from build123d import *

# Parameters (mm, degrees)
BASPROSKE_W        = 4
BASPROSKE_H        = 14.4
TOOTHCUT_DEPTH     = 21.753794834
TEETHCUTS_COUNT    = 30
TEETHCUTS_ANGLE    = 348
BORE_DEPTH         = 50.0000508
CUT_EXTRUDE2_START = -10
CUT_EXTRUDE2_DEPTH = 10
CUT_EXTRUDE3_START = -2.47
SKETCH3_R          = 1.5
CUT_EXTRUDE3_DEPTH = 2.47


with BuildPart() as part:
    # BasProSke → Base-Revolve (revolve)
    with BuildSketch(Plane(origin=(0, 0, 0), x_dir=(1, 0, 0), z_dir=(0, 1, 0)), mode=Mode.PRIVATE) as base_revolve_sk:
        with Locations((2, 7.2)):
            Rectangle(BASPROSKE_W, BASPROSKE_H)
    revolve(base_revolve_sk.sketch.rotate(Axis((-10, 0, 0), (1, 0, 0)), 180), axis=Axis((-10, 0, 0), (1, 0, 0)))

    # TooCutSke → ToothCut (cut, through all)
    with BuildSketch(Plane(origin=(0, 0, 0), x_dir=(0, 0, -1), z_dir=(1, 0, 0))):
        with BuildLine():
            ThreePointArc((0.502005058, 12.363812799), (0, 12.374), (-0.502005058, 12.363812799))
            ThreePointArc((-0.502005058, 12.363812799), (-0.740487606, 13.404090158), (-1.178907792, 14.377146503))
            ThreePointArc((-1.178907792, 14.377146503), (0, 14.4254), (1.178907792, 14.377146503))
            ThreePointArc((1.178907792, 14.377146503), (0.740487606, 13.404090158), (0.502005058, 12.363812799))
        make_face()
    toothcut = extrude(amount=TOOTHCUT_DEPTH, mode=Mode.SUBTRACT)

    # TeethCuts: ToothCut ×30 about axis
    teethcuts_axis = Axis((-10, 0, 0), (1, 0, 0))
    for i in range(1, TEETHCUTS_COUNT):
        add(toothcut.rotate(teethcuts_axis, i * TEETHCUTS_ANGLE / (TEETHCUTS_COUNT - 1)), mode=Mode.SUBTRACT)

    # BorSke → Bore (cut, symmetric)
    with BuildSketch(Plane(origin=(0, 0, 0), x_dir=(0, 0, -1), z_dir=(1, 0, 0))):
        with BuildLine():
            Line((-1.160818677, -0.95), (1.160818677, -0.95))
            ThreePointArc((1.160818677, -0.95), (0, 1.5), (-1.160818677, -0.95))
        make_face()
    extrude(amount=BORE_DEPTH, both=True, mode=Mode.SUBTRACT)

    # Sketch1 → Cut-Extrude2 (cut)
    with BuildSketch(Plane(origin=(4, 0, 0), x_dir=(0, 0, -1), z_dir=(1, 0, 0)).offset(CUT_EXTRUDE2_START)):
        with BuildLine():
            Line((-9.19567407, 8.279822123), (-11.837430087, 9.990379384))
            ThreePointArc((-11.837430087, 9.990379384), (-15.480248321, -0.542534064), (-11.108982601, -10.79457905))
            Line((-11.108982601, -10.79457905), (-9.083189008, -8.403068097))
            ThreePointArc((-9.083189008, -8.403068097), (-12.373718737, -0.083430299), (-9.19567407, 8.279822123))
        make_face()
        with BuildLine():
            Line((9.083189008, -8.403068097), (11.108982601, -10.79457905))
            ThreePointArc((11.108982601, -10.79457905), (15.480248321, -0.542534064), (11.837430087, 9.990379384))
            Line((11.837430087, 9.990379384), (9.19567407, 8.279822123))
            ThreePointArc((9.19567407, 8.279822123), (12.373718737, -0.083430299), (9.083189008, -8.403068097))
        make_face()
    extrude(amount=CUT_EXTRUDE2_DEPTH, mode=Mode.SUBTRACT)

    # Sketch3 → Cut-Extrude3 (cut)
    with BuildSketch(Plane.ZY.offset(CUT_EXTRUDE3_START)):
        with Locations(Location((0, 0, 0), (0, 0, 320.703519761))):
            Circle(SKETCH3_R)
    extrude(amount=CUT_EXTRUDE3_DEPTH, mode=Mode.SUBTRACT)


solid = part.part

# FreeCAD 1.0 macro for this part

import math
import FreeCAD as App
import Part
import Sketcher

V = App.Vector
Q = App.Units.Quantity

doc = App.newDocument("Part")
body = doc.addObject("PartDesign::Body", "Body")

# Sketch on XZ plane
sketch1 = body.newObject("Sketcher::SketchObject", "Sketch")
sketch1.AttachmentSupport = (doc.getObject("XZ_Plane"), [""])
sketch1.MapMode = "FlatFace"
sketch1.addGeometry([
    Part.LineSegment(V(0, -14.4, 0), V(0, 0, 0)),
    Part.LineSegment(V(0, 0, 0), V(4, 0, 0)),
    Part.LineSegment(V(4, 0, 0), V(4, -14.4, 0)),
    Part.LineSegment(V(4, -14.4, 0), V(0, -14.4, 0)),
], False)
sketch1.addConstraint([
    Sketcher.Constraint("Coincident", 0, 2, 1, 1),
    Sketcher.Constraint("Coincident", 1, 2, 2, 1),
    Sketcher.Constraint("Coincident", 2, 2, 3, 1),
    Sketcher.Constraint("Coincident", 3, 2, 0, 1),
    Sketcher.Constraint("Vertical", 0),
    Sketcher.Constraint("Horizontal", 1),
    Sketcher.Constraint("Vertical", 2),
    Sketcher.Constraint("Horizontal", 3),
    Sketcher.Constraint("Coincident", 0, 2, -1, 1),
    Sketcher.Constraint("DistanceX", 1, 1, 1, 2, Q("4 mm")),
    Sketcher.Constraint("DistanceY", 0, 1, 0, 2, Q("14.4 mm")),
])
revolution = body.newObject("PartDesign::Revolution", "Revolution")
revolution.Profile = sketch1
revolution.ReferenceAxis = (sketch1, ["H_Axis"])
revolution.Angle = 360

# Sketch on YZ plane
sketch2 = body.newObject("Sketcher::SketchObject", "Sketch001")
sketch2.AttachmentSupport = (doc.getObject("YZ_Plane"), [""])
sketch2.MapMode = "FlatFace"
sketch2.addGeometry([
    Part.ArcOfCircle(Part.Circle(V(0, 0, 0), V(0, 0, 1), 12.4), math.radians(-2.33), math.radians(2.33)),
    Part.ArcOfCircle(Part.Circle(V(11.7, -5.9, 0), V(0, 0, 1), 5.4), math.radians(60), math.radians(83)),
    Part.ArcOfCircle(Part.Circle(V(0, 0, 0), V(0, 0, 1), 14.4), math.radians(-4.69), math.radians(4.69)),
    Part.ArcOfCircle(Part.Circle(V(11.7, 5.9, 0), V(0, 0, 1), 5.4), math.radians(-83), math.radians(-60)),
], False)
sketch2.addConstraint([
    Sketcher.Constraint("Coincident", 0, 1, 1, 2),
    Sketcher.Constraint("Coincident", 1, 1, 2, 1),
    Sketcher.Constraint("Coincident", 2, 2, 3, 2),
    Sketcher.Constraint("Coincident", 3, 1, 0, 2),
    Sketcher.Constraint("Coincident", 0, 3, -1, 1),
    Sketcher.Constraint("Coincident", 2, 3, -1, 1),
    Sketcher.Constraint("Equal", 1, 3),
    Sketcher.Constraint("Symmetric", 1, 3, 3, 3, -1),
    Sketcher.Constraint("Radius", 1, Q("5.4 mm")),
    Sketcher.Constraint("Radius", 0, Q("12.374 mm")),
    Sketcher.Constraint("Radius", 2, Q("14.4254 mm")),
    Sketcher.Constraint("DistanceX", 1, 3, 0, 1, Q("0.680598 mm")),
    Sketcher.Constraint("DistanceY", 0, 1, 3, 3, Q("6.360948 mm")),
])
pocket1 = body.newObject("PartDesign::Pocket", "Pocket")
pocket1.Profile = sketch2
pocket1.Type = "ThroughAll"
pocket1.Reversed = True
doc.recompute()

polarpattern = body.newObject("PartDesign::PolarPattern", "PolarPattern")
polarpattern.Originals = [pocket1]
polarpattern.Axis = (doc.getObject("X_Axis"), [""])
polarpattern.Angle = 360
polarpattern.Occurrences = 30
body.Tip = polarpattern

# Sketch on YZ plane
sketch3 = body.newObject("Sketcher::SketchObject", "Sketch002")
sketch3.AttachmentSupport = (doc.getObject("YZ_Plane"), [""])
sketch3.MapMode = "FlatFace"
sketch3.addGeometry([
    Part.LineSegment(V(-0.9, 1.2, 0), V(-0.9, -1.2, 0)),
    Part.ArcOfCircle(Part.Circle(V(0, 0, 0), V(0, 0, 1), 1.5), math.radians(-129), math.radians(129)),
], False)
sketch3.addConstraint([
    Sketcher.Constraint("Coincident", 0, 1, 1, 2),
    Sketcher.Constraint("Coincident", 1, 1, 0, 2),
    Sketcher.Constraint("Vertical", 0),
    Sketcher.Constraint("Coincident", 1, 3, -1, 1),
    Sketcher.Constraint("Radius", 1, Q("1.5 mm")),
    Sketcher.Constraint("DistanceX", 0, 1, -1, 1, Q("0.95 mm")),
])
pocket2 = body.newObject("PartDesign::Pocket", "Pocket001")
pocket2.Profile = sketch3
pocket2.Length = 100.000102
pocket2.Midplane = True

# Sketch on YZ plane
sketch4 = body.newObject("Sketcher::SketchObject", "Sketch003")
sketch4.AttachmentSupport = (doc.getObject("YZ_Plane"), [""])
sketch4.MapMode = "FlatFace"
sketch4.AttachmentOffset = App.Placement(V(0, 0, -6), App.Rotation())
sketch4.addGeometry([
    Part.LineSegment(V(8.3, 9.2, 0), V(10, 11.8, 0)),  # 0
    Part.ArcOfCircle(Part.Circle(V(0, 0, 0), V(0, 0, 1), 15.5), math.radians(50), math.radians(134)),  # 1
    Part.LineSegment(V(-10.8, 11.1, 0), V(-8.4, 9.1, 0)),  # 2
    Part.ArcOfCircle(Part.Circle(V(0, 0, 0), V(0, 0, 1), 12.4), math.radians(48), math.radians(133)),  # 3
    Part.LineSegment(V(-8.4, -9.1, 0), V(-10.8, -11.1, 0)),  # 4
    Part.ArcOfCircle(Part.Circle(V(0, 0, 0), V(0, 0, 1), 15.5), math.radians(-134), math.radians(-50)),  # 5
    Part.LineSegment(V(10, -11.8, 0), V(8.3, -9.2, 0)),  # 6
    Part.ArcOfCircle(Part.Circle(V(0, 0, 0), V(0, 0, 1), 12.4), math.radians(-133), math.radians(-48)),  # 7
], False)
sketch4.addConstraint([
    Sketcher.Constraint("Coincident", 0, 2, 1, 1),
    Sketcher.Constraint("Coincident", 1, 2, 2, 1),
    Sketcher.Constraint("Coincident", 2, 2, 3, 2),
    Sketcher.Constraint("Coincident", 3, 1, 0, 1),
    Sketcher.Constraint("Coincident", 4, 2, 5, 1),
    Sketcher.Constraint("Coincident", 5, 2, 6, 1),
    Sketcher.Constraint("Coincident", 6, 2, 7, 2),
    Sketcher.Constraint("Coincident", 7, 1, 4, 1),
    Sketcher.Constraint("Coincident", 1, 3, -1, 1),
    Sketcher.Constraint("Coincident", 3, 3, -1, 1),
    Sketcher.Constraint("Coincident", 5, 3, -1, 1),
    Sketcher.Constraint("Coincident", 7, 3, -1, 1),
    Sketcher.Constraint("Equal", 1, 5),
    Sketcher.Constraint("Equal", 3, 7),
    Sketcher.Constraint("Vertical", 1, 2, 4, 2),
    Sketcher.Constraint("Vertical", 0, 2, 5, 2),
    Sketcher.Constraint("Vertical", 3, 1, 6, 2),
    Sketcher.Constraint("Vertical", 2, 2, 7, 1),
    Sketcher.Constraint("Radius", 3, Q("12.374 mm")),
    Sketcher.Constraint("Radius", 1, Q("15.489752 mm")),
    Sketcher.Constraint("DistanceX", -1, 1, 0, 2, Q("9.990379 mm")),
    Sketcher.Constraint("DistanceX", 1, 2, -1, 1, Q("10.794579 mm")),
    Sketcher.Constraint("DistanceX", 2, 2, -1, 1, Q("8.403068 mm")),
    Sketcher.Constraint("Distance", 0, Q("3.147202 mm")),
])
pocket3 = body.newObject("PartDesign::Pocket", "Pocket002")
pocket3.Profile = sketch4
pocket3.Length = 10
pocket3.Reversed = True

# Sketch on YZ plane
sketch5 = body.newObject("Sketcher::SketchObject", "Sketch004")
sketch5.AttachmentSupport = (doc.getObject("YZ_Plane"), [""])
sketch5.MapMode = "FlatFace"
sketch5.AttachmentOffset = App.Placement(V(0, 0, 2.47), App.Rotation())
sketch5.addGeometry(Part.Circle(V(0, 0, 0), V(0, 0, 1), 1.5), False)
sketch5.addConstraint([
    Sketcher.Constraint("Coincident", 0, 3, -1, 1),
    Sketcher.Constraint("Diameter", 0, Q("3 mm")),
])
pocket4 = body.newObject("PartDesign::Pocket", "Pocket003")
pocket4.Profile = sketch5
pocket4.Length = 2.47

doc.recompute()
